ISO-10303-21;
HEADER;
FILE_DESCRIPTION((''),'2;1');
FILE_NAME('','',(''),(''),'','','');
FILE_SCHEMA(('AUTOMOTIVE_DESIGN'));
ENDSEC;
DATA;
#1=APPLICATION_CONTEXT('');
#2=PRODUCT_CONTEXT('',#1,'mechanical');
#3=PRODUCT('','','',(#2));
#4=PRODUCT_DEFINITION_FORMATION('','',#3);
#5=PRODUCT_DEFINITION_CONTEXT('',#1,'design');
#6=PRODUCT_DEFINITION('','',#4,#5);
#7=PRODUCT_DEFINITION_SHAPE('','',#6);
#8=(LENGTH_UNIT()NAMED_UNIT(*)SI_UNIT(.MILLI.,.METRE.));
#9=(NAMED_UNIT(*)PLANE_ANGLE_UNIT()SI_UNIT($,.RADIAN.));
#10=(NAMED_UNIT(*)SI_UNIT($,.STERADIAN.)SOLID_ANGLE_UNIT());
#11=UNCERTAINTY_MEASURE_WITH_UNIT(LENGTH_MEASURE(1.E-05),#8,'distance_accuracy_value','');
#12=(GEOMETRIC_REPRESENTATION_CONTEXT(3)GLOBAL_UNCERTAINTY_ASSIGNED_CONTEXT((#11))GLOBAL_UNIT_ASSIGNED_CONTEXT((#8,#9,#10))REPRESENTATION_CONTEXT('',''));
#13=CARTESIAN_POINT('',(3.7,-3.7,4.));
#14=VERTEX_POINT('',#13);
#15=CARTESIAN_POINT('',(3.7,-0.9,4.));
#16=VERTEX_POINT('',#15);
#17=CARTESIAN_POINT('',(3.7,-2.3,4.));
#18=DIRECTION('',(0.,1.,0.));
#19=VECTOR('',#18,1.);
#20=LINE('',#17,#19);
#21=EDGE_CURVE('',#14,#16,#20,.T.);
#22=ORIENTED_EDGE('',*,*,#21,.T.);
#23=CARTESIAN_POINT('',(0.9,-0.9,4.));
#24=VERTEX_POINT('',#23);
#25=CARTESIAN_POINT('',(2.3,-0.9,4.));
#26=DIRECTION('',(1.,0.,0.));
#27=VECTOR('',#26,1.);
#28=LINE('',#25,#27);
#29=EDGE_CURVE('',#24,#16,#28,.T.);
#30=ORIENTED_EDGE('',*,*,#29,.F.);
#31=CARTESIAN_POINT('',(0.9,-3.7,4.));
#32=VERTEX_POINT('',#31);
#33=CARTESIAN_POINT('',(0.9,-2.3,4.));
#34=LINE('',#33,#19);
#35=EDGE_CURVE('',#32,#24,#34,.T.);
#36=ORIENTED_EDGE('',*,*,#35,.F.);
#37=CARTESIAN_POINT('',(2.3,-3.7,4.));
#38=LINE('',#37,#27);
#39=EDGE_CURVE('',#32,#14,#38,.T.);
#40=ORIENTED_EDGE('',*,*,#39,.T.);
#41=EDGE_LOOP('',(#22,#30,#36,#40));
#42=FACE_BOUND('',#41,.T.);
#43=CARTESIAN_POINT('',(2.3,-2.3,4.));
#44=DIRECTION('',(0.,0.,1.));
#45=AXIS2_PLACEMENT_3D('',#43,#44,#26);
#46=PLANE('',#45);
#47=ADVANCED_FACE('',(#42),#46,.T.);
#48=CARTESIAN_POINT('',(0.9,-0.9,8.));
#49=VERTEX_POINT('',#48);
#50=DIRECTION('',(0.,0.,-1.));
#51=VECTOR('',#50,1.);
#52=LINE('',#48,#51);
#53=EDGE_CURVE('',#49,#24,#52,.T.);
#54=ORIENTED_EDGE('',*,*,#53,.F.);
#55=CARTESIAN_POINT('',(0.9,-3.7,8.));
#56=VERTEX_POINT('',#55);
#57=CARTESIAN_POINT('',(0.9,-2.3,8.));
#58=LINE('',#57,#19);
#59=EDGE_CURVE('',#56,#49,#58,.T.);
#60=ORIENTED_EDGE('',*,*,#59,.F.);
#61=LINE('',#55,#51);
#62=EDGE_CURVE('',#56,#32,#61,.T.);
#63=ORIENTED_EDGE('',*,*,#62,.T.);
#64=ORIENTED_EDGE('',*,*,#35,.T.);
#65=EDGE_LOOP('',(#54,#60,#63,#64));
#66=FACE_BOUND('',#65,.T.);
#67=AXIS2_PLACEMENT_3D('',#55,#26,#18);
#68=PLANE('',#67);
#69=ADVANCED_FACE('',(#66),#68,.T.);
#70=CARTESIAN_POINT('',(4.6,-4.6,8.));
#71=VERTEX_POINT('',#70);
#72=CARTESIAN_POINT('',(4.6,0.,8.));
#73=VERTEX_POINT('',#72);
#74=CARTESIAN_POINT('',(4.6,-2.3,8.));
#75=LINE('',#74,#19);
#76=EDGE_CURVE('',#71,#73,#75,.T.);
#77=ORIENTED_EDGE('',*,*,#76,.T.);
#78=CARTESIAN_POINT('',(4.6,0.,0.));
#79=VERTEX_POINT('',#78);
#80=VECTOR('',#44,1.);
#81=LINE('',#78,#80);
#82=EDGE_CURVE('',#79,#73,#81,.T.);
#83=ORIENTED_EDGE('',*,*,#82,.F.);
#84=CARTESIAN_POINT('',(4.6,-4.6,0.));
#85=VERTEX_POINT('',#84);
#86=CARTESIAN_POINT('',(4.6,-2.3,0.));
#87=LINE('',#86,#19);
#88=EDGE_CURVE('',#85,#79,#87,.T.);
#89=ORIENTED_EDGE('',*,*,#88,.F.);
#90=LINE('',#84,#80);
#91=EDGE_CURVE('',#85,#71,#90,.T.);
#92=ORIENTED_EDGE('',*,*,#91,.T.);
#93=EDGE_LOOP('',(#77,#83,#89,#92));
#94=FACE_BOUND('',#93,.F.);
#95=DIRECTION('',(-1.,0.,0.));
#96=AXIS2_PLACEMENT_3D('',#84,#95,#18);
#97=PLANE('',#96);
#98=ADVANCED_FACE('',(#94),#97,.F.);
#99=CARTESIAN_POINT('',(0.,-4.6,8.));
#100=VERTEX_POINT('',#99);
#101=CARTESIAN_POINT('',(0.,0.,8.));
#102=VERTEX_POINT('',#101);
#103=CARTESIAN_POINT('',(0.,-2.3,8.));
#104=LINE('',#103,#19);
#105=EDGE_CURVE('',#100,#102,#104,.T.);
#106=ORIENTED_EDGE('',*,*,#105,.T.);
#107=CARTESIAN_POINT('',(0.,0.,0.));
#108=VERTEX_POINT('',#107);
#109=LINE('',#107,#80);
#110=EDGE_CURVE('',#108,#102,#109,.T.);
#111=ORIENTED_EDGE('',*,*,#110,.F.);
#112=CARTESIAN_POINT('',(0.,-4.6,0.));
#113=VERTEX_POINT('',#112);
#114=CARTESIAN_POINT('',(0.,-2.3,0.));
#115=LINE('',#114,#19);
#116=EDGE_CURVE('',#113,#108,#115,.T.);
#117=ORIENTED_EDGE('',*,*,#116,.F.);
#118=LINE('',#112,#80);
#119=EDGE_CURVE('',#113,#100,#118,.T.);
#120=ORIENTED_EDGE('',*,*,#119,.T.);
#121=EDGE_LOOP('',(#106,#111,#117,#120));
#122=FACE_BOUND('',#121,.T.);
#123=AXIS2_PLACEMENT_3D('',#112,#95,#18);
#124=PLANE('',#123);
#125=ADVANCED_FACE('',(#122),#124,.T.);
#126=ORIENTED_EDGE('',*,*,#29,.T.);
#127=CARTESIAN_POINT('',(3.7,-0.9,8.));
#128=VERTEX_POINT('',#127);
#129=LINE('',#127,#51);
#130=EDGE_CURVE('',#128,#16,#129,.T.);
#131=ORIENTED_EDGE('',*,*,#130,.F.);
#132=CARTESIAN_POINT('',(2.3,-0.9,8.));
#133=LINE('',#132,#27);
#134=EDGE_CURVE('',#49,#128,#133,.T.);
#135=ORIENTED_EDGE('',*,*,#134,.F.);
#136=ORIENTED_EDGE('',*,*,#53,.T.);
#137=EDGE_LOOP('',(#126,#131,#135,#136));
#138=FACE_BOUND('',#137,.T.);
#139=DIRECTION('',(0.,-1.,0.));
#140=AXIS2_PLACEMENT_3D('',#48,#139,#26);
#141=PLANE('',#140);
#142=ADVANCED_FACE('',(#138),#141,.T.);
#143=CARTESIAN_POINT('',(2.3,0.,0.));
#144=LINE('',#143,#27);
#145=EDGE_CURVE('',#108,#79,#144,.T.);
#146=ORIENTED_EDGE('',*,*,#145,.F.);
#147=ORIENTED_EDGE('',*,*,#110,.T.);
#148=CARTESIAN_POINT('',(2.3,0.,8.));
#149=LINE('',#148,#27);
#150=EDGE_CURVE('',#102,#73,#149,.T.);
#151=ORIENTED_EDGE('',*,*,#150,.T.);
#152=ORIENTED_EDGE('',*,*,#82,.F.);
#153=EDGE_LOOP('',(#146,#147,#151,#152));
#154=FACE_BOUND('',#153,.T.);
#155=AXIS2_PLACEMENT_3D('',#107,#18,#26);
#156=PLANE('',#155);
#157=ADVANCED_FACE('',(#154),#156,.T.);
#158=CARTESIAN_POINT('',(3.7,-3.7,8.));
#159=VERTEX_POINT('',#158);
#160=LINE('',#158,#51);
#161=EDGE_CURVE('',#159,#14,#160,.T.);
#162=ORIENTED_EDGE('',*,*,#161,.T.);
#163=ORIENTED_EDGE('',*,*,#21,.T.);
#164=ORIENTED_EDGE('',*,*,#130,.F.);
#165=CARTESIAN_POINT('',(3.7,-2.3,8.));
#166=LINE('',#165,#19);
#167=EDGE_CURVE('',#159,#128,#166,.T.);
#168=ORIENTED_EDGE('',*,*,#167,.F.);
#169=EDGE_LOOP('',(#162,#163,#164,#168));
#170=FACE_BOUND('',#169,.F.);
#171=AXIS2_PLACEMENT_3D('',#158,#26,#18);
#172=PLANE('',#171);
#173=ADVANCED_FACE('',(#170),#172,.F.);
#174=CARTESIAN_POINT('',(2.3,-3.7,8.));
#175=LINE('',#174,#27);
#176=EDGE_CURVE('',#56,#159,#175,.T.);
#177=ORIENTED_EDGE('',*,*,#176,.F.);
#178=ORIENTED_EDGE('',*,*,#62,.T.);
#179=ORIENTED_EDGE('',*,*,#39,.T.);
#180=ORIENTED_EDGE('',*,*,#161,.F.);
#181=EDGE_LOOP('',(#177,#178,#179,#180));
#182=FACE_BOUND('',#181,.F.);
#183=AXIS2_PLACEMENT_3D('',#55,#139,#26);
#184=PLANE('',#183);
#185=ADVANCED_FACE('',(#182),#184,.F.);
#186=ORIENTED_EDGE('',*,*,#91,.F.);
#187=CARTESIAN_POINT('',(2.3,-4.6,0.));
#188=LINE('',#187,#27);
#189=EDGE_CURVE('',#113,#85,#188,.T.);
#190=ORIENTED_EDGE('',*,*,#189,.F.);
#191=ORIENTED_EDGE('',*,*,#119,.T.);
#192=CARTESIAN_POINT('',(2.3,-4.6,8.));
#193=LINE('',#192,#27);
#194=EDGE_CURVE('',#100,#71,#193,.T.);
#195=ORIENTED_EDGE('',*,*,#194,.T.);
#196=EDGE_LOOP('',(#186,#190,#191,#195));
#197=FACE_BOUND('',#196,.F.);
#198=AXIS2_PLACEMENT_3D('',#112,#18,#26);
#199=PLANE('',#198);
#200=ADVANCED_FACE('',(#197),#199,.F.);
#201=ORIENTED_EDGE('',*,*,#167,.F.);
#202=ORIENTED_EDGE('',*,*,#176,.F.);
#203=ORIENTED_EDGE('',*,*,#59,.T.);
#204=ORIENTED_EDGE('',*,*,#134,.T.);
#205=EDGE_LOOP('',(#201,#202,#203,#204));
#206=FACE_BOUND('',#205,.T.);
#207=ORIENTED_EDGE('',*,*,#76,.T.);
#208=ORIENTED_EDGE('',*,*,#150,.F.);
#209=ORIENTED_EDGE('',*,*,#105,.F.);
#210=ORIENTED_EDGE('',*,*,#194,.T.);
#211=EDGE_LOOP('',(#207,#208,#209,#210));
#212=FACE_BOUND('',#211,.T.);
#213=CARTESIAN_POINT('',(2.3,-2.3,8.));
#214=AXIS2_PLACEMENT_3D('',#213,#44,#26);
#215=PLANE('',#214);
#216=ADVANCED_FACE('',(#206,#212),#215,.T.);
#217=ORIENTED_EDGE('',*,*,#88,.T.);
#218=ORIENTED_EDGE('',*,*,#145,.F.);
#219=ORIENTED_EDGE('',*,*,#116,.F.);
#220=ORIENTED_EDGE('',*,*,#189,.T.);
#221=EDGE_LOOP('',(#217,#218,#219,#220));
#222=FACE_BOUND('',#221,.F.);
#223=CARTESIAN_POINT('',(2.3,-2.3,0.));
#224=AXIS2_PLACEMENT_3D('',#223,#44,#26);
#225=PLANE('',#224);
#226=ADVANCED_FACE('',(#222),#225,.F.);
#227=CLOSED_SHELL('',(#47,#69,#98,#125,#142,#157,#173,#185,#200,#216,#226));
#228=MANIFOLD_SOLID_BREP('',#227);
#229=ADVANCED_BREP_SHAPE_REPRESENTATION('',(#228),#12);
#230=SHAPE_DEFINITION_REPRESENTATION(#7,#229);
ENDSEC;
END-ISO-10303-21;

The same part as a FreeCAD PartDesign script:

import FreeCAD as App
import Part
import Sketcher
from FreeCAD import Vector
Q = App.Units.Quantity

doc = App.newDocument("Part")
body = doc.addObject("PartDesign::Body", "Body")

# Sketch on XY plane
sketch1 = body.newObject("Sketcher::SketchObject", "Sketch")
sketch1.AttachmentSupport = (doc.getObject("XY_Plane"), [""])
sketch1.MapMode = "FlatFace"
sketch1.addGeometry([
    Part.LineSegment(Vector(0, 0, 0), Vector(0, -4.6, 0)),
    Part.LineSegment(Vector(0, -4.6, 0), Vector(4.6, -4.6, 0)),
    Part.LineSegment(Vector(4.6, -4.6, 0), Vector(4.6, 0, 0)),
    Part.LineSegment(Vector(4.6, 0, 0), Vector(0, 0, 0)),
], False)
sketch1.addConstraint([
    Sketcher.Constraint("Coincident", 0, 2, 1, 1),
    Sketcher.Constraint("Coincident", 1, 2, 2, 1),
    Sketcher.Constraint("Coincident", 2, 2, 3, 1),
    Sketcher.Constraint("Coincident", 3, 2, 0, 1),
    Sketcher.Constraint("Vertical", 0),
    Sketcher.Constraint("Horizontal", 1),
    Sketcher.Constraint("Vertical", 2),
    Sketcher.Constraint("Horizontal", 3),
    Sketcher.Constraint("Coincident", 3, 2, -1, 1),
    Sketcher.Constraint("Equal", 3, 0),
    Sketcher.Constraint("DistanceX", 1, 1, 1, 2, Q("4.6 mm")),
])
pad1 = body.newObject("PartDesign::Pad", "Pad")
pad1.Profile = sketch1
pad1.Length = 8

# Sketch on XY plane
sketch2 = body.newObject("Sketcher::SketchObject", "Sketch001")
sketch2.AttachmentSupport = (doc.getObject("XY_Plane"), [""])
sketch2.MapMode = "FlatFace"
sketch2.AttachmentOffset = App.Placement(Vector(0, 0, 8), App.Rotation())
sketch2.addGeometry([
    Part.LineSegment(Vector(0.9, -0.9, 0), Vector(0.9, -3.7, 0)),
    Part.LineSegment(Vector(0.9, -3.7, 0), Vector(3.7, -3.7, 0)),
    Part.LineSegment(Vector(3.7, -3.7, 0), Vector(3.7, -0.9, 0)),
    Part.LineSegment(Vector(3.7, -0.9, 0), Vector(0.9, -0.9, 0)),
], False)
sketch2.addConstraint([
    Sketcher.Constraint("Coincident", 0, 2, 1, 1),
    Sketcher.Constraint("Coincident", 1, 2, 2, 1),
    Sketcher.Constraint("Coincident", 2, 2, 3, 1),
    Sketcher.Constraint("Coincident", 3, 2, 0, 1),
    Sketcher.Constraint("Vertical", 0),
    Sketcher.Constraint("Horizontal", 1),
    Sketcher.Constraint("Vertical", 2),
    Sketcher.Constraint("Horizontal", 3),
    Sketcher.Constraint("Equal", 3, 0),
    Sketcher.Constraint("DistanceX", 1, 1, 1, 2, Q("2.8 mm")),
    Sketcher.Constraint("DistanceX", -1, 1, 0, 2, Q("0.9 mm")),
    Sketcher.Constraint("DistanceY", 0, 2, -1, 1, Q("3.7 mm")),
])
pocket1 = body.newObject("PartDesign::Pocket", "Pocket")
pocket1.Profile = sketch2
pocket1.Length = 4

doc.recompute()
